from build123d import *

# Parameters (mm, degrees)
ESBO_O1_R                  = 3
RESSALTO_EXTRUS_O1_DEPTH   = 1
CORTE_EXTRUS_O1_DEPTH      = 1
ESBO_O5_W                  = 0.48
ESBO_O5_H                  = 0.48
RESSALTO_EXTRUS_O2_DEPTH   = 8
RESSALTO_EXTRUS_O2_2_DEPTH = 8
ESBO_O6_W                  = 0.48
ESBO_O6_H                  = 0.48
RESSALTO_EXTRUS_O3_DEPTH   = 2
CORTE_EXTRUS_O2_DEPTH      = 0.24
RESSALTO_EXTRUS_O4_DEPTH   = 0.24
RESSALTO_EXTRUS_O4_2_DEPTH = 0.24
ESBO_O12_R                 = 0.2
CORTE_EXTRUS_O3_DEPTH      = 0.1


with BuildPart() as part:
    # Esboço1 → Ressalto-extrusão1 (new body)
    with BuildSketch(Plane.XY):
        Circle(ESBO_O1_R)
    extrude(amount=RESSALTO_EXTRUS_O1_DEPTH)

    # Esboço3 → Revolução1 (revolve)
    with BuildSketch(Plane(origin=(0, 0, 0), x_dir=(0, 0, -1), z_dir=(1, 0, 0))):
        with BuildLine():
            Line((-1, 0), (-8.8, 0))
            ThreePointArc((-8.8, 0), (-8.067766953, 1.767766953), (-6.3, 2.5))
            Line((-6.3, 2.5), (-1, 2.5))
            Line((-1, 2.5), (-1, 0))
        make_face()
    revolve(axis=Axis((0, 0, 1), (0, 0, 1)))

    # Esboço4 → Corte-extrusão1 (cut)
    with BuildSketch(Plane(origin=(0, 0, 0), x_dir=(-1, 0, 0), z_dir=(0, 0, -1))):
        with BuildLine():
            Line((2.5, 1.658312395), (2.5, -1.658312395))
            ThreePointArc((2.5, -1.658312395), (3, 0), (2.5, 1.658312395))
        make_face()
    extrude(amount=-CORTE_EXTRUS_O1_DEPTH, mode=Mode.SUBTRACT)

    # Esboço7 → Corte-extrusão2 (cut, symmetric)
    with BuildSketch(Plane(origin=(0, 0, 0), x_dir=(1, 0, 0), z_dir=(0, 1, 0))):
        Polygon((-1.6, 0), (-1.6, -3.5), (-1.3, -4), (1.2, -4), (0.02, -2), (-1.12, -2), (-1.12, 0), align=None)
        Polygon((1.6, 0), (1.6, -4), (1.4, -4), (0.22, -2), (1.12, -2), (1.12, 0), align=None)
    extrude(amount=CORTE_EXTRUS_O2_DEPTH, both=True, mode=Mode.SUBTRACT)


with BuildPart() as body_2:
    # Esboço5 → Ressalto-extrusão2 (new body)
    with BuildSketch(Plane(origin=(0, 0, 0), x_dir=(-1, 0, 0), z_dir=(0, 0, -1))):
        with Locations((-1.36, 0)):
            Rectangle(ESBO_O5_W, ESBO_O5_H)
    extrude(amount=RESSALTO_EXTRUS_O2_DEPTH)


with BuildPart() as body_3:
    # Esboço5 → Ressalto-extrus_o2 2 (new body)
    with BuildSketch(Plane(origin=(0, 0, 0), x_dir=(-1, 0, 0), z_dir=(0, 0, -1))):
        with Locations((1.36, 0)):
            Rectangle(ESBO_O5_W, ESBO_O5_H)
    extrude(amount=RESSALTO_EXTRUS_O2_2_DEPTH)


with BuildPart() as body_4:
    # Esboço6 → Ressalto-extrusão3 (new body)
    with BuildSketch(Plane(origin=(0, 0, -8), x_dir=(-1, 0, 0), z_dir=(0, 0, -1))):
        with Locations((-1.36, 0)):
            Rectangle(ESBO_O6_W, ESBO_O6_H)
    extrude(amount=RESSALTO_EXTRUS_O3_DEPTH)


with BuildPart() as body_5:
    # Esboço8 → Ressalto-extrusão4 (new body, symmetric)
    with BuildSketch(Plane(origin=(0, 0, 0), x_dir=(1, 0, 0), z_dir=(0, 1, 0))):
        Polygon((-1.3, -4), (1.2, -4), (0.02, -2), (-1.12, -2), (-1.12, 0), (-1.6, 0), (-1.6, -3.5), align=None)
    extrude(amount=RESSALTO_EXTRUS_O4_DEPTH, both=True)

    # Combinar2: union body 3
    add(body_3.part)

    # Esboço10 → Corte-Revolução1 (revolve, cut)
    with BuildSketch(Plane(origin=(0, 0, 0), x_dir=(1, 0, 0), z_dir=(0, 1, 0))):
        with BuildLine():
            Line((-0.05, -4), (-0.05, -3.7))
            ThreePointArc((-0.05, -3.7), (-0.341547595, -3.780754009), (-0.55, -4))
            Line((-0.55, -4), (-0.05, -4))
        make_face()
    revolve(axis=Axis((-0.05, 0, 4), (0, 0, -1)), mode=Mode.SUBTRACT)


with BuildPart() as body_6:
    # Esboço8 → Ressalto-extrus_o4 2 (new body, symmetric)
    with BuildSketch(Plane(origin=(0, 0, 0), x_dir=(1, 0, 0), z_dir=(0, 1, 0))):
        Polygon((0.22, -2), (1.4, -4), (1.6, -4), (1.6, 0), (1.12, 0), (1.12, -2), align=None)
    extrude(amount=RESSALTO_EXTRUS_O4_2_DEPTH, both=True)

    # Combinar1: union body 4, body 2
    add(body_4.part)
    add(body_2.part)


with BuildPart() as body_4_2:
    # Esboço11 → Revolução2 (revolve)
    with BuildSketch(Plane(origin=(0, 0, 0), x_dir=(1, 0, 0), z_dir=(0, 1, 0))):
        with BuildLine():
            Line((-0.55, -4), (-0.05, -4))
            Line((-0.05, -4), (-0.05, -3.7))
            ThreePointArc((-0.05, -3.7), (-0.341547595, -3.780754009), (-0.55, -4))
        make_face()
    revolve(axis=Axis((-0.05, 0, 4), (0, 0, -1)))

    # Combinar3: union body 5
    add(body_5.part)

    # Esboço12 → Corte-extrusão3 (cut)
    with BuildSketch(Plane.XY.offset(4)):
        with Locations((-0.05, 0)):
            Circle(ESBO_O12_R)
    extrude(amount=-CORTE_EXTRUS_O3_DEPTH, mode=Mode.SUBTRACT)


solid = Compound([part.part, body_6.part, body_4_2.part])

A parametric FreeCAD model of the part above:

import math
import FreeCAD as App
import Part
import Sketcher


def add_polygon(sketch, points):
    """Adds a closed chain of lines whose ends are joined by coincident constraints."""
    first, n = sketch.GeometryCount, len(points)
    for a, b in zip(points, points[1:] + points[:1]):
        sketch.addGeometry(Part.LineSegment(App.Vector(*a, 0), App.Vector(*b, 0)), False)
    for i in range(n):
        sketch.addConstraint(Sketcher.Constraint("Coincident", first + i, 2, first + (i + 1) % n, 1))

doc = App.newDocument("Part")
params = doc.addObject("Spreadsheet::Sheet", "Params")
for row, (alias, value) in enumerate([
    ("sketch1_diameter", "6 mm"),
    ("pad1_length", "1 mm"),
    ("sketch2_radius", "2.5 mm"),
    ("sketch2_height", "7.8 mm"),
    ("revolution_angle", "360 deg"),
    ("sketch3_radius", "3 mm"),
    ("pocket1_length", "1 mm"),
    ("sketch4_height", "2 mm"),
    ("sketch4_height2", "4 mm"),
    ("sketch4_width", "2.5 mm"),
    ("sketch4_width2", "0.9 mm"),
    ("sketch4_width3", "0.2 mm"),
    ("pocket2_length", "0.48 mm"),
    ("sketch5_width", "0.48 mm"),
    ("pad2_length", "8 mm"),
    ("sketch6_width", "0.48 mm"),
    ("pad3_length", "8 mm"),
    ("sketch7_width", "0.48 mm"),
    ("pad4_length", "2 mm"),
    ("sketch8_height", "2 mm"),
    ("sketch8_width", "2.5 mm"),
    ("sketch8_height2", "3.5 mm"),
    ("sketch8_width2", "1.14 mm"),
    ("sketch8_width3", "0.48 mm"),
    ("pad5_length", "0.48 mm"),
    ("sketch9_width", "0.5 mm"),
    ("sketch9_height", "0.3 mm"),
    ("groove_angle", "360 deg"),
    ("sketch10_height", "4 mm"),
    ("sketch10_height2", "2 mm"),
    ("sketch10_width", "0.2 mm"),
    ("sketch10_width2", "0.9 mm"),
    ("sketch10_width3", "0.48 mm"),
    ("pad6_length", "0.48 mm"),
    ("sketch11_width", "0.5 mm"),
    ("sketch11_height", "0.3 mm"),
    ("revolution2_angle", "360 deg"),
    ("sketch12_diameter", "0.4 mm"),
    ("pocket3_length", "0.1 mm"),
], start=1):
    params.set(f"A{row}", alias)
    params.set(f"B{row}", "=" + value)
    params.setAlias(f"B{row}", alias)

body = doc.addObject("PartDesign::Body", "Body")

sketch1 = body.newObject("Sketcher::SketchObject", "Sketch")
sketch1.AttachmentSupport = (doc.getObject("XY_Plane"), [""])
sketch1.MapMode = "FlatFace"
sketch1.addGeometry(Part.Circle(App.Vector(0, 0, 0), App.Vector(0, 0, 1), 3), False)
sketch1.addConstraint(Sketcher.Constraint("Coincident", 0, 3, -1, 1))
sketch1.addConstraint(Sketcher.Constraint("Diameter", 0, 6.0))
sketch1.setExpression("Constraints[1]", "Params.sketch1_diameter")
pad1 = body.newObject("PartDesign::Pad", "Pad")
pad1.Profile = sketch1
pad1.setExpression("Length", "Params.pad1_length")

sketch2 = body.newObject("Sketcher::SketchObject", "Sketch001")
sketch2.AttachmentSupport = (doc.getObject("YZ_Plane"), [""])
sketch2.MapMode = "FlatFace"
sketch2.addGeometry(Part.LineSegment(App.Vector(0, 8.8, 0), App.Vector(0, 1, 0)), False)
sketch2.addGeometry(Part.LineSegment(App.Vector(0, 1, 0), App.Vector(2.5, 1, 0)), False)
sketch2.addGeometry(Part.LineSegment(App.Vector(2.5, 1, 0), App.Vector(2.5, 6.3, 0)), False)
sketch2.addGeometry(Part.ArcOfCircle(Part.Circle(App.Vector(0, 6.3, 0), App.Vector(0, 0, 1), 2.5), math.radians(0), math.radians(90)), False)
sketch2.addConstraint(Sketcher.Constraint("Coincident", 0, 2, 1, 1))
sketch2.addConstraint(Sketcher.Constraint("Coincident", 1, 2, 2, 1))
sketch2.addConstraint(Sketcher.Constraint("Tangent", 2, 2, 3, 1))
sketch2.addConstraint(Sketcher.Constraint("Coincident", 3, 2, 0, 1))
sketch2.addConstraint(Sketcher.Constraint("Vertical", 0))
sketch2.addConstraint(Sketcher.Constraint("Horizontal", 1))
sketch2.addConstraint(Sketcher.Constraint("Vertical", 2))
sketch2.addConstraint(Sketcher.Constraint("PointOnObject", 3, 3, -2))
sketch2.addConstraint(Sketcher.Constraint("PointOnObject", 0, 2, -2))
sketch2.addConstraint(Sketcher.Constraint("Radius", 3, 2.5))
sketch2.addConstraint(Sketcher.Constraint("DistanceY", 0, 2, 0, 1, 7.8))
sketch2.addConstraint(Sketcher.Constraint("DistanceY", -1, 1, 0, 2, 1.0))
sketch2.setExpression("Constraints[9]", "Params.sketch2_radius")
sketch2.setExpression("Constraints[10]", "Params.sketch2_height")
revolution = body.newObject("PartDesign::Revolution", "Revolution")
revolution.Profile = sketch2
revolution.ReferenceAxis = (sketch2, ["V_Axis"])
revolution.setExpression("Angle", "Params.revolution_angle")

sketch3 = body.newObject("Sketcher::SketchObject", "Sketch002")
sketch3.AttachmentSupport = (doc.getObject("XY_Plane"), [""])
sketch3.MapMode = "FlatFace"
sketch3.addGeometry(Part.LineSegment(App.Vector(-2.5, 1.658312, 0), App.Vector(-2.5, -1.658312, 0)), False)
sketch3.addGeometry(Part.ArcOfCircle(Part.Circle(App.Vector(0, 0, 0), App.Vector(0, 0, 1), 3), math.radians(146.44269), math.radians(213.55731)), False)
sketch3.addConstraint(Sketcher.Constraint("Coincident", 0, 1, 1, 1))
sketch3.addConstraint(Sketcher.Constraint("Coincident", 1, 2, 0, 2))
sketch3.addConstraint(Sketcher.Constraint("Vertical", 0))
sketch3.addConstraint(Sketcher.Constraint("Coincident", 1, 3, -1, 1))
sketch3.addConstraint(Sketcher.Constraint("Radius", 1, 3.0))
sketch3.addConstraint(Sketcher.Constraint("DistanceX", 0, 1, -1, 1, 2.5))
sketch3.setExpression("Constraints[4]", "Params.sketch3_radius")
pocket1 = body.newObject("PartDesign::Pocket", "Pocket")
pocket1.Profile = sketch3
pocket1.setExpression("Length", "Params.pocket1_length")
pocket1.Reversed = True

sketch4 = body.newObject("Sketcher::SketchObject", "Sketch003")
sketch4.AttachmentSupport = (doc.getObject("XZ_Plane"), [""])
sketch4.MapMode = "FlatFace"
add_polygon(sketch4, [(-1.6, 0), (-1.6, 3.5), (-1.3, 4), (1.2, 4), (0.02, 2), (-1.12, 2), (-1.12, 0)])
add_polygon(sketch4, [(1.6, 4), (1.6, 0), (1.12, 0), (1.12, 2), (0.22, 2), (1.4, 4)])
sketch4.addConstraint(Sketcher.Constraint("Vertical", 0))
sketch4.addConstraint(Sketcher.Constraint("Horizontal", 2))
sketch4.addConstraint(Sketcher.Constraint("Horizontal", 4))
sketch4.addConstraint(Sketcher.Constraint("Vertical", 5))
sketch4.addConstraint(Sketcher.Constraint("Horizontal", 6))
sketch4.addConstraint(Sketcher.Constraint("Vertical", 7))
sketch4.addConstraint(Sketcher.Constraint("Horizontal", 8))
sketch4.addConstraint(Sketcher.Constraint("Vertical", 9))
sketch4.addConstraint(Sketcher.Constraint("Horizontal", 10))
sketch4.addConstraint(Sketcher.Constraint("Horizontal", 12))
sketch4.addConstraint(Sketcher.Constraint("Symmetric", 6, 2, 7, 2, -1, 1))
sketch4.addConstraint(Sketcher.Constraint("Symmetric", 5, 2, 8, 2, -2))
sketch4.addConstraint(Sketcher.Constraint("Parallel", 3, 11))
sketch4.addConstraint(Sketcher.Constraint("Horizontal", 4, 2, 9, 2))
sketch4.addConstraint(Sketcher.Constraint("Horizontal", 2, 2, 11, 2))
sketch4.addConstraint(Sketcher.Constraint("DistanceY", 5, 2, 5, 1, 2.0))
sketch4.addConstraint(Sketcher.Constraint("DistanceY", 7, 2, 7, 1, 4.0))
sketch4.addConstraint(Sketcher.Constraint("DistanceX", 2, 1, 2, 2, 2.5))
sketch4.addConstraint(Sketcher.Constraint("DistanceX", 10, 2, 10, 1, 0.9))
sketch4.addConstraint(Sketcher.Constraint("DistanceX", 12, 1, 12, 2, 0.2))
sketch4.addConstraint(Sketcher.Constraint("DistanceY", 0, 1, 0, 2, 3.5))
sketch4.addConstraint(Sketcher.Constraint("DistanceX", 4, 2, 4, 1, 1.14))
sketch4.addConstraint(Sketcher.Constraint("DistanceX", 6, 2, 6, 1, 0.48))
sketch4.addConstraint(Sketcher.Constraint("DistanceX", 0, 2, -1, 1, 1.6))
sketch4.setExpression("Constraints[28]", "Params.sketch4_height")
sketch4.setExpression("Constraints[29]", "Params.sketch4_height2")
sketch4.setExpression("Constraints[30]", "Params.sketch4_width")
sketch4.setExpression("Constraints[31]", "Params.sketch4_width2")
sketch4.setExpression("Constraints[32]", "Params.sketch4_width3")
pocket2 = body.newObject("PartDesign::Pocket", "Pocket001")
pocket2.Profile = sketch4
pocket2.setExpression("Length", "Params.pocket2_length")
pocket2.Midplane = True
body2 = doc.addObject("PartDesign::Body", "Body001")

sketch5 = body2.newObject("Sketcher::SketchObject", "Sketch004")
sketch5.AttachmentSupport = (doc.getObject("XY_Plane001"), [""])
sketch5.MapMode = "FlatFace"
add_polygon(sketch5, [(1.6, 0.24), (1.6, -0.24), (1.12, -0.24), (1.12, 0.24)])
sketch5.addConstraint(Sketcher.Constraint("Vertical", 0))
sketch5.addConstraint(Sketcher.Constraint("Horizontal", 1))
sketch5.addConstraint(Sketcher.Constraint("Vertical", 2))
sketch5.addConstraint(Sketcher.Constraint("Horizontal", 3))
sketch5.addConstraint(Sketcher.Constraint("Equal", 3, 0))
sketch5.addConstraint(Sketcher.Constraint("DistanceX", 1, 2, 1, 1, 0.48))
sketch5.addConstraint(Sketcher.Constraint("DistanceX", -1, 1, 0, 2, 1.6))
sketch5.addConstraint(Sketcher.Constraint("DistanceY", 0, 2, -1, 1, 0.24))
sketch5.setExpression("Constraints[9]", "Params.sketch5_width")
pad2 = body2.newObject("PartDesign::Pad", "Pad001")
pad2.Profile = sketch5
pad2.setExpression("Length", "Params.pad2_length")
pad2.Reversed = True
body3 = doc.addObject("PartDesign::Body", "Body002")

sketch6 = body3.newObject("Sketcher::SketchObject", "Sketch005")
sketch6.AttachmentSupport = (doc.getObject("XY_Plane002"), [""])
sketch6.MapMode = "FlatFace"
add_polygon(sketch6, [(-1.12, 0.24), (-1.12, -0.24), (-1.6, -0.24), (-1.6, 0.24)])
sketch6.addConstraint(Sketcher.Constraint("Vertical", 0))
sketch6.addConstraint(Sketcher.Constraint("Horizontal", 1))
sketch6.addConstraint(Sketcher.Constraint("Vertical", 2))
sketch6.addConstraint(Sketcher.Constraint("Horizontal", 3))
sketch6.addConstraint(Sketcher.Constraint("Equal", 3, 0))
sketch6.addConstraint(Sketcher.Constraint("DistanceX", 1, 2, 1, 1, 0.48))
sketch6.addConstraint(Sketcher.Constraint("DistanceX", 1, 2, -1, 1, 1.6))
sketch6.addConstraint(Sketcher.Constraint("DistanceY", 0, 2, -1, 1, 0.24))
sketch6.setExpression("Constraints[9]", "Params.sketch6_width")
pad3 = body3.newObject("PartDesign::Pad", "Pad002")
pad3.Profile = sketch6
pad3.setExpression("Length", "Params.pad3_length")
pad3.Reversed = True
body4 = doc.addObject("PartDesign::Body", "Body003")

sketch7 = body4.newObject("Sketcher::SketchObject", "Sketch006")
sketch7.AttachmentSupport = (doc.getObject("XY_Plane003"), [""])
sketch7.MapMode = "FlatFace"
sketch7.AttachmentOffset = App.Placement(App.Vector(0, 0, -8), App.Rotation())
add_polygon(sketch7, [(1.6, 0.24), (1.6, -0.24), (1.12, -0.24), (1.12, 0.24)])
sketch7.addConstraint(Sketcher.Constraint("Vertical", 0))
sketch7.addConstraint(Sketcher.Constraint("Horizontal", 1))
sketch7.addConstraint(Sketcher.Constraint("Vertical", 2))
sketch7.addConstraint(Sketcher.Constraint("Horizontal", 3))
sketch7.addConstraint(Sketcher.Constraint("Equal", 3, 0))
sketch7.addConstraint(Sketcher.Constraint("DistanceX", 1, 2, 1, 1, 0.48))
sketch7.addConstraint(Sketcher.Constraint("DistanceX", -1, 1, 0, 2, 1.6))
sketch7.addConstraint(Sketcher.Constraint("DistanceY", 0, 2, -1, 1, 0.24))
sketch7.setExpression("Constraints[9]", "Params.sketch7_width")
pad4 = body4.newObject("PartDesign::Pad", "Pad003")
pad4.Profile = sketch7
pad4.setExpression("Length", "Params.pad4_length")
pad4.Reversed = True
body5 = doc.addObject("PartDesign::Body", "Body004")

sketch8 = body5.newObject("Sketcher::SketchObject", "Sketch007")
sketch8.AttachmentSupport = (doc.getObject("XZ_Plane004"), [""])
sketch8.MapMode = "FlatFace"
add_polygon(sketch8, [(-1.3, 4), (1.2, 4), (0.02, 2), (-1.12, 2), (-1.12, 0), (-1.6, 0), (-1.6, 3.5)])
sketch8.addConstraint(Sketcher.Constraint("Horizontal", 0))
sketch8.addConstraint(Sketcher.Constraint("Horizontal", 2))
sketch8.addConstraint(Sketcher.Constraint("Vertical", 3))
sketch8.addConstraint(Sketcher.Constraint("Horizontal", 4))
sketch8.addConstraint(Sketcher.Constraint("Vertical", 5))
sketch8.addConstraint(Sketcher.Constraint("PointOnObject", 3, 2, -1))
sketch8.addConstraint(Sketcher.Constraint("DistanceY", 3, 2, 3, 1, 2.0))
sketch8.addConstraint(Sketcher.Constraint("DistanceX", 0, 1, 0, 2, 2.5))
sketch8.addConstraint(Sketcher.Constraint("DistanceY", 5, 1, 5, 2, 3.5))
sketch8.addConstraint(Sketcher.Constraint("DistanceY", -1, 1, 0, 2, 4.0))
sketch8.addConstraint(Sketcher.Constraint("DistanceX", 2, 2, 2, 1, 1.14))
sketch8.addConstraint(Sketcher.Constraint("DistanceX", 4, 2, 4, 1, 0.48))
sketch8.addConstraint(Sketcher.Constraint("DistanceX", -1, 1, 0, 2, 1.2))
sketch8.addConstraint(Sketcher.Constraint("DistanceX", 4, 2, -1, 1, 1.6))
sketch8.setExpression("Constraints[13]", "Params.sketch8_height")
sketch8.setExpression("Constraints[14]", "Params.sketch8_width")
sketch8.setExpression("Constraints[15]", "Params.sketch8_height2")
sketch8.setExpression("Constraints[17]", "Params.sketch8_width2")
sketch8.setExpression("Constraints[18]", "Params.sketch8_width3")
pad5 = body5.newObject("PartDesign::Pad", "Pad004")
pad5.Profile = sketch8
pad5.setExpression("Length", "Params.pad5_length")
pad5.Midplane = True
doc.recompute()

boolean = body5.newObject("PartDesign::Boolean", "Boolean")
boolean.Type = "Fuse"
boolean.addObjects([body3])

sketch9 = body5.newObject("Sketcher::SketchObject", "Sketch008")
sketch9.AttachmentSupport = (doc.getObject("XZ_Plane004"), [""])
sketch9.MapMode = "FlatFace"
sketch9.addGeometry(Part.LineSegment(App.Vector(-0.05, 4, 0), App.Vector(-0.05, 3.7, 0)), False)
sketch9.addGeometry(Part.ArcOfCircle(Part.Circle(App.Vector(-0.05, 4.266667, 0), App.Vector(0, 0, 1), 0.566667), math.radians(-151.927513), math.radians(-90)), False)
sketch9.addGeometry(Part.LineSegment(App.Vector(-0.55, 4, 0), App.Vector(-0.05, 4, 0)), False)
sketch9.addGeometry(Part.LineSegment(App.Vector(-0.05, 4.266667, 0), App.Vector(-0.05, 3.7, 0)), True)
sketch9.addConstraint(Sketcher.Constraint("Coincident", 0, 2, 1, 2))
sketch9.addConstraint(Sketcher.Constraint("Coincident", 1, 1, 2, 1))
sketch9.addConstraint(Sketcher.Constraint("Coincident", 2, 2, 0, 1))
sketch9.addConstraint(Sketcher.Constraint("Vertical", 0))
sketch9.addConstraint(Sketcher.Constraint("Horizontal", 2))
sketch9.addConstraint(Sketcher.Constraint("Vertical", 3))
sketch9.addConstraint(Sketcher.Constraint("Coincident", 3, 1, 1, 3))
sketch9.addConstraint(Sketcher.Constraint("Coincident", 3, 2, 0, 2))
sketch9.addConstraint(Sketcher.Constraint("DistanceX", 2, 1, 2, 2, 0.5))
sketch9.addConstraint(Sketcher.Constraint("DistanceY", 0, 2, 0, 1, 0.3))
sketch9.addConstraint(Sketcher.Constraint("DistanceY", -1, 1, 1, 1, 4.0))
sketch9.addConstraint(Sketcher.Constraint("DistanceX", 1, 3, -1, 1, 0.05))
sketch9.setExpression("Constraints[8]", "Params.sketch9_width")
sketch9.setExpression("Constraints[9]", "Params.sketch9_height")
groove = body5.newObject("PartDesign::Groove", "Groove")
groove.Profile = sketch9
groove.ReferenceAxis = (sketch9, ["Axis0"])
groove.setExpression("Angle", "Params.groove_angle")
body6 = doc.addObject("PartDesign::Body", "Body005")
body6.AllowCompound = True

sketch10 = body6.newObject("Sketcher::SketchObject", "Sketch009")
sketch10.AttachmentSupport = (doc.getObject("XZ_Plane005"), [""])
sketch10.MapMode = "FlatFace"
add_polygon(sketch10, [(0.22, 2), (1.4, 4), (1.6, 4), (1.6, 0), (1.12, 0), (1.12, 2)])
sketch10.addConstraint(Sketcher.Constraint("Horizontal", 1))
sketch10.addConstraint(Sketcher.Constraint("Vertical", 2))
sketch10.addConstraint(Sketcher.Constraint("Horizontal", 3))
sketch10.addConstraint(Sketcher.Constraint("Vertical", 4))
sketch10.addConstraint(Sketcher.Constraint("Horizontal", 5))
sketch10.addConstraint(Sketcher.Constraint("PointOnObject", 2, 2, -1))
sketch10.addConstraint(Sketcher.Constraint("DistanceY", 2, 2, 2, 1, 4.0))
sketch10.addConstraint(Sketcher.Constraint("DistanceY", 4, 1, 4, 2, 2.0))
sketch10.addConstraint(Sketcher.Constraint("DistanceX", 1, 1, 1, 2, 0.2))
sketch10.addConstraint(Sketcher.Constraint("DistanceX", 5, 2, 5, 1, 0.9))
sketch10.addConstraint(Sketcher.Constraint("DistanceX", 3, 2, 3, 1, 0.48))
sketch10.addConstraint(Sketcher.Constraint("DistanceX", -1, 1, 0, 2, 1.4))
sketch10.setExpression("Constraints[12]", "Params.sketch10_height")
sketch10.setExpression("Constraints[13]", "Params.sketch10_height2")
sketch10.setExpression("Constraints[14]", "Params.sketch10_width")
sketch10.setExpression("Constraints[15]", "Params.sketch10_width2")
sketch10.setExpression("Constraints[16]", "Params.sketch10_width3")
pad6 = body6.newObject("PartDesign::Pad", "Pad005")
pad6.Profile = sketch10
pad6.setExpression("Length", "Params.pad6_length")
pad6.Midplane = True
doc.recompute()

boolean2 = body6.newObject("PartDesign::Boolean", "Boolean001")
boolean2.Type = "Fuse"
boolean2.addObjects([body4])
doc.recompute()

boolean3 = body6.newObject("PartDesign::Boolean", "Boolean002")
boolean3.Type = "Fuse"
boolean3.addObjects([body2])
body7 = doc.addObject("PartDesign::Body", "Body006")

sketch11 = body7.newObject("Sketcher::SketchObject", "Sketch010")
sketch11.AttachmentSupport = (doc.getObject("XZ_Plane006"), [""])
sketch11.MapMode = "FlatFace"
sketch11.addGeometry(Part.LineSegment(App.Vector(-0.55, 4, 0), App.Vector(-0.05, 4, 0)), False)
sketch11.addGeometry(Part.LineSegment(App.Vector(-0.05, 4, 0), App.Vector(-0.05, 3.7, 0)), False)
sketch11.addGeometry(Part.ArcOfCircle(Part.Circle(App.Vector(-0.05, 4.266667, 0), App.Vector(0, 0, 1), 0.566667), math.radians(-151.927513), math.radians(-90)), False)
sketch11.addGeometry(Part.LineSegment(App.Vector(-0.05, 4.266667, 0), App.Vector(-0.05, 3.7, 0)), True)
sketch11.addConstraint(Sketcher.Constraint("Coincident", 0, 2, 1, 1))
sketch11.addConstraint(Sketcher.Constraint("Coincident", 1, 2, 2, 2))
sketch11.addConstraint(Sketcher.Constraint("Coincident", 2, 1, 0, 1))
sketch11.addConstraint(Sketcher.Constraint("Horizontal", 0))
sketch11.addConstraint(Sketcher.Constraint("Vertical", 1))
sketch11.addConstraint(Sketcher.Constraint("Vertical", 3))
sketch11.addConstraint(Sketcher.Constraint("Coincident", 3, 1, 2, 3))
sketch11.addConstraint(Sketcher.Constraint("Coincident", 3, 2, 1, 2))
sketch11.addConstraint(Sketcher.Constraint("DistanceX", 0, 1, 0, 2, 0.5))
sketch11.addConstraint(Sketcher.Constraint("DistanceY", 1, 2, 1, 1, 0.3))
sketch11.addConstraint(Sketcher.Constraint("DistanceY", -1, 1, 0, 2, 4.0))
sketch11.addConstraint(Sketcher.Constraint("DistanceX", 2, 3, -1, 1, 0.05))
sketch11.setExpression("Constraints[8]", "Params.sketch11_width")
sketch11.setExpression("Constraints[9]", "Params.sketch11_height")
revolution2 = body7.newObject("PartDesign::Revolution", "Revolution001")
revolution2.Profile = sketch11
revolution2.ReferenceAxis = (sketch11, ["Axis0"])
revolution2.setExpression("Angle", "Params.revolution2_angle")
doc.recompute()

boolean4 = body7.newObject("PartDesign::Boolean", "Boolean003")
boolean4.Type = "Fuse"
boolean4.addObjects([body5])

sketch12 = body7.newObject("Sketcher::SketchObject", "Sketch011")
sketch12.AttachmentSupport = (doc.getObject("XY_Plane006"), [""])
sketch12.MapMode = "FlatFace"
sketch12.AttachmentOffset = App.Placement(App.Vector(0, 0, 4), App.Rotation())
sketch12.addGeometry(Part.Circle(App.Vector(-0.05, 0, 0), App.Vector(0, 0, 1), 0.2), False)
sketch12.addConstraint(Sketcher.Constraint("PointOnObject", 0, 3, -1))
sketch12.addConstraint(Sketcher.Constraint("Diameter", 0, 0.4))
sketch12.addConstraint(Sketcher.Constraint("DistanceX", 0, 3, -1, 1, 0.05))
sketch12.setExpression("Constraints[1]", "Params.sketch12_diameter")
pocket3 = body7.newObject("PartDesign::Pocket", "Pocket002")
pocket3.Profile = sketch12
pocket3.setExpression("Length", "Params.pocket3_length")

doc.recompute()
